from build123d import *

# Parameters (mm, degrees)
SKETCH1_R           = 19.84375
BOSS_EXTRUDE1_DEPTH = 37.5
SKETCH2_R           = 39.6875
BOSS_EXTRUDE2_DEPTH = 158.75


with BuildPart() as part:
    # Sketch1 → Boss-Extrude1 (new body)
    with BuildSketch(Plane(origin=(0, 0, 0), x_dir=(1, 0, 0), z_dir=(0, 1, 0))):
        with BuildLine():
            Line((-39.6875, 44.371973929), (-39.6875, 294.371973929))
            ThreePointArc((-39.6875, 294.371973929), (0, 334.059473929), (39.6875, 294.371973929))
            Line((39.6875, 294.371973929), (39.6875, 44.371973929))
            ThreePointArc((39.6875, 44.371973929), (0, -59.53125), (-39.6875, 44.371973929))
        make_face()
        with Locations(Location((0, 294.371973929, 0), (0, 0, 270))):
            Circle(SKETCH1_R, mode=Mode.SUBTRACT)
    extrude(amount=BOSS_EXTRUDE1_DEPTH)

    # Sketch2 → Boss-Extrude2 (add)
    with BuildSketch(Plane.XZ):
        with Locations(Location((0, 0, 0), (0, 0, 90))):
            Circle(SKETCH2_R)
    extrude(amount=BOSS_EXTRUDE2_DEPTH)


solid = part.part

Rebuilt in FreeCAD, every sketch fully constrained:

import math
import FreeCAD as App
import Part
import Sketcher
from FreeCAD import Vector
Q = App.Units.Quantity

doc = App.newDocument("Part")
params = doc.addObject("Spreadsheet::Sheet", "Params")
for row, (alias, value) in enumerate([
    ("sketch1_diameter", "1.5625 in"),
    ("sketch1_radius", "2.34375 in"),
    ("sketch1_radius2", "1.5625 in"),
    ("pad1_length", "37.5 mm"),
    ("sketch2_diameter", "3.125 in"),
    ("pad2_length", "6.25 in"),
], start=1):
    params.set(f"A{row}", alias)
    params.set(f"B{row}", "=" + value)
    params.setAlias(f"B{row}", alias)

body = doc.addObject("PartDesign::Body", "Body")

# Sketch on XZ plane
sketch1 = body.newObject("Sketcher::SketchObject", "Sketch")
sketch1.AttachmentSupport = (doc.getObject("XZ_Plane"), [""])
sketch1.MapMode = "FlatFace"
sketch1.addGeometry([
    Part.LineSegment(Vector(-40, -294, 0), Vector(-40, -44, 0)),  # 0
    Part.ArcOfCircle(Part.Circle(Vector(0, 0, 0), Vector(0, 0, 1), 60), math.radians(-48), math.radians(228)),  # 1
    Part.LineSegment(Vector(40, -44, 0), Vector(40, -294, 0)),  # 2
    Part.ArcOfCircle(Part.Circle(Vector(0, -294, 0), Vector(0, 0, 1), 40), math.radians(180), math.radians(360)),  # 3
    Part.Circle(Vector(0, -294, 0), Vector(0, 0, 1), 20),  # 4
], False)
sketch1.addConstraint([
    Sketcher.Constraint("Coincident", 0, 2, 1, 2),
    Sketcher.Constraint("Coincident", 1, 1, 2, 1),
    Sketcher.Constraint("Tangent", 2, 2, 3, 2),
    Sketcher.Constraint("Tangent", 3, 1, 0, 1),
    Sketcher.Constraint("Vertical", 0),
    Sketcher.Constraint("Vertical", 2),
    Sketcher.Constraint("Coincident", 1, 3, -1, 1),
    Sketcher.Constraint("Coincident", 4, 3, 3, 3),
    Sketcher.Constraint("PointOnObject", 3, 3, -2),
    Sketcher.Constraint("Diameter", 4, Q("1.5625 in")),
    Sketcher.Constraint("Radius", 1, Q("2.34375 in")),
    Sketcher.Constraint("Radius", 3, Q("1.5625 in")),
    Sketcher.Constraint("DistanceY", 0, 1, 0, 2, 250.0),
])
sketch1.setExpression("Constraints[9]", "Params.sketch1_diameter")
sketch1.setExpression("Constraints[10]", "Params.sketch1_radius")
sketch1.setExpression("Constraints[11]", "Params.sketch1_radius2")
pad1 = body.newObject("PartDesign::Pad", "Pad")
pad1.Profile = sketch1
pad1.setExpression("Length", "Params.pad1_length")
pad1.Reversed = True

# Sketch on XZ plane
sketch2 = body.newObject("Sketcher::SketchObject", "Sketch001")
sketch2.AttachmentSupport = (doc.getObject("XZ_Plane"), [""])
sketch2.MapMode = "FlatFace"
sketch2.addGeometry(Part.Circle(Vector(0, 0, 0), Vector(0, 0, 1), 40), False)
sketch2.addConstraint([
    Sketcher.Constraint("Coincident", 0, 3, -1, 1),
    Sketcher.Constraint("Diameter", 0, Q("3.125 in")),
])
sketch2.setExpression("Constraints[1]", "Params.sketch2_diameter")
pad2 = body.newObject("PartDesign::Pad", "Pad001")
pad2.Profile = sketch2
pad2.setExpression("Length", "Params.pad2_length")

doc.recompute()
